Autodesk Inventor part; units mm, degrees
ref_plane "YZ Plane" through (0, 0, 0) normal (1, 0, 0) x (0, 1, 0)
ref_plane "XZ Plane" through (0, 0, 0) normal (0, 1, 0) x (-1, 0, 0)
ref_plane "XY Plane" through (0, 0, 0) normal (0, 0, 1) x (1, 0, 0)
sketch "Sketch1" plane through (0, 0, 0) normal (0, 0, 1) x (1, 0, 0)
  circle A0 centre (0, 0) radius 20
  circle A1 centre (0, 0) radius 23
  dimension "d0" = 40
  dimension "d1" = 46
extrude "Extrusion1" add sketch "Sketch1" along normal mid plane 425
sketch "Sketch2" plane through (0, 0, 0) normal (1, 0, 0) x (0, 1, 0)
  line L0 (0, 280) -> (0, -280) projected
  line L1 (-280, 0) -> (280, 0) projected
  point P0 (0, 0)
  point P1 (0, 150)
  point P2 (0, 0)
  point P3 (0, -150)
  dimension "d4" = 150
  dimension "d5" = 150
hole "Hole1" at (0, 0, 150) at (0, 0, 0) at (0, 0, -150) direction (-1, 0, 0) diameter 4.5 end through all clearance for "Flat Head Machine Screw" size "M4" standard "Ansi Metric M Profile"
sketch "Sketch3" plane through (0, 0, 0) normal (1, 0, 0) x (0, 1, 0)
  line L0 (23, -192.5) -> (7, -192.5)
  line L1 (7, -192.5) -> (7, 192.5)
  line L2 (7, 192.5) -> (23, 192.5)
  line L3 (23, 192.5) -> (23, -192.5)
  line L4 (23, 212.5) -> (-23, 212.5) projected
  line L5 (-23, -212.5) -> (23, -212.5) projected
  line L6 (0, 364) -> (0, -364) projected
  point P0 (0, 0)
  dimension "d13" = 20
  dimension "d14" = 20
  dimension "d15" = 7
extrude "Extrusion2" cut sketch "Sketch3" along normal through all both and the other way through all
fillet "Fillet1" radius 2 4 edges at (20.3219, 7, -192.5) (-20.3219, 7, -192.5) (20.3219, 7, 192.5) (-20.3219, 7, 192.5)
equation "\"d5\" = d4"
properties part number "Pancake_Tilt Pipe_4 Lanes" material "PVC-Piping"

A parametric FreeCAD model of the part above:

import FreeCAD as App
import Part
import Sketcher


def edges_at(feature, points):
    """Names of the edges that pass closest to the given points."""
    edges = feature.Shape.Edges
    near = lambda p: min(range(len(edges)), key=lambda i: edges[i].distToShape(Part.Vertex(*p))[0])
    return sorted({f"Edge{near(p) + 1}" for p in points})

doc = App.newDocument("Part")
params = doc.addObject("Spreadsheet::Sheet", "Params")
for row, (alias, value) in enumerate([
    ("sketch1_diameter", "46 mm"),
    ("sketch1_diameter2", "40 mm"),
    ("pad1_length", "425 mm"),
    ("sketch2_diameter", "4.5 mm"),
    ("hole_diameter", "4.5 mm"),
    ("sketch3_width", "16 mm"),
    ("sketch3_height", "385 mm"),
    ("fillet_radius", "2 mm"),
], start=1):
    params.set(f"A{row}", alias)
    params.set(f"B{row}", "=" + value)
    params.setAlias(f"B{row}", alias)

body = doc.addObject("PartDesign::Body", "Body")

# Sketch on XY plane
sketch1 = doc.addObject("Sketcher::SketchObject", "Sketch")
body.addObject(sketch1)
sketch1.AttachmentSupport = (doc.XY_Plane, [""])
sketch1.MapMode = "FlatFace"
sketch1.addGeometry([
    Part.Circle(App.Vector(0, 0, 0), App.Vector(0, 0, 1), 23),
    Part.Circle(App.Vector(0, 0, 0), App.Vector(0, 0, 1), 20),
], False)
sketch1.addConstraint([
    Sketcher.Constraint("Coincident", 0, 3, -1, 1),
    Sketcher.Constraint("Coincident", 1, 3, -1, 1),
    Sketcher.Constraint("Diameter", 0, 46.0),
    Sketcher.Constraint("Diameter", 1, 40.0),
])
sketch1.setExpression("Constraints[2]", "Params.sketch1_diameter")
sketch1.setExpression("Constraints[3]", "Params.sketch1_diameter2")
pad1 = doc.addObject("PartDesign::Pad", "Pad")
body.addObject(pad1)
pad1.Profile = sketch1
pad1.setExpression("Length", "Params.pad1_length")
pad1.Midplane = True

# Sketch on YZ plane
sketch2 = doc.addObject("Sketcher::SketchObject", "Sketch001")
body.addObject(sketch2)
sketch2.AttachmentSupport = (doc.YZ_Plane, [""])
sketch2.MapMode = "FlatFace"
sketch2.addGeometry([
    Part.Circle(App.Vector(0, 150, 0), App.Vector(0, 0, 1), 2.25),
    Part.Circle(App.Vector(0, 0, 0), App.Vector(0, 0, 1), 2.25),
    Part.Circle(App.Vector(0, -150, 0), App.Vector(0, 0, 1), 2.25),
], False)
sketch2.addConstraint([
    Sketcher.Constraint("Coincident", 1, 3, -1, 1),
    Sketcher.Constraint("Equal", 0, 1),
    Sketcher.Constraint("Equal", 1, 2),
    Sketcher.Constraint("Symmetric", 0, 3, 2, 3, -1, 1),
    Sketcher.Constraint("PointOnObject", 0, 3, -2),
    Sketcher.Constraint("Diameter", 0, 4.5),
    Sketcher.Constraint("DistanceY", -1, 1, 0, 3, 150.0),
])
sketch2.setExpression("Constraints[5]", "Params.sketch2_diameter")
doc.recompute()
hole = doc.addObject("PartDesign::Hole", "Hole")
body.addObject(hole)
hole.Profile = sketch2
hole.ThreadType = "None"
hole.setExpression("Diameter", "Params.hole_diameter")
hole.DepthType = "ThroughAll"

# Sketch on YZ plane
sketch3 = doc.addObject("Sketcher::SketchObject", "Sketch002")
body.addObject(sketch3)
sketch3.AttachmentSupport = (doc.YZ_Plane, [""])
sketch3.MapMode = "FlatFace"
sketch3.addGeometry([
    Part.LineSegment(App.Vector(7, -192.5, 0), App.Vector(23, -192.5, 0)),
    Part.LineSegment(App.Vector(23, -192.5, 0), App.Vector(23, 192.5, 0)),
    Part.LineSegment(App.Vector(23, 192.5, 0), App.Vector(7, 192.5, 0)),
    Part.LineSegment(App.Vector(7, 192.5, 0), App.Vector(7, -192.5, 0)),
], False)
sketch3.addConstraint([
    Sketcher.Constraint("Coincident", 0, 2, 1, 1),
    Sketcher.Constraint("Coincident", 1, 2, 2, 1),
    Sketcher.Constraint("Coincident", 2, 2, 3, 1),
    Sketcher.Constraint("Coincident", 3, 2, 0, 1),
    Sketcher.Constraint("Horizontal", 0),
    Sketcher.Constraint("Vertical", 1),
    Sketcher.Constraint("Horizontal", 2),
    Sketcher.Constraint("Vertical", 3),
    Sketcher.Constraint("DistanceX", -1, 1, 2, 2, 7.0),
    Sketcher.Constraint("DistanceX", 0, 1, 0, 2, 16.0),
    Sketcher.Constraint("DistanceY", 1, 1, 1, 2, 385.0),
    Sketcher.Constraint("DistanceY", 0, 2, -1, 1, 192.5),
])
sketch3.setExpression("Constraints[9]", "Params.sketch3_width")
sketch3.setExpression("Constraints[10]", "Params.sketch3_height")
pocket1 = doc.addObject("PartDesign::Pocket", "Pocket")
body.addObject(pocket1)
pocket1.Profile = sketch3
pocket1.Type = "ThroughAll"
pocket1.Midplane = True
doc.recompute()

fillet = doc.addObject("PartDesign::Fillet", "Fillet")
body.addObject(fillet)
fillet.Base = (pocket1, edges_at(pocket1, [
    (20.322, 7, -192.5),
    (-20.322, 7, -192.5),
    (20.322, 7, 192.5),
    (-20.322, 7, 192.5),
]))
fillet.setExpression("Radius", "Params.fillet_radius")

doc.recompute()
